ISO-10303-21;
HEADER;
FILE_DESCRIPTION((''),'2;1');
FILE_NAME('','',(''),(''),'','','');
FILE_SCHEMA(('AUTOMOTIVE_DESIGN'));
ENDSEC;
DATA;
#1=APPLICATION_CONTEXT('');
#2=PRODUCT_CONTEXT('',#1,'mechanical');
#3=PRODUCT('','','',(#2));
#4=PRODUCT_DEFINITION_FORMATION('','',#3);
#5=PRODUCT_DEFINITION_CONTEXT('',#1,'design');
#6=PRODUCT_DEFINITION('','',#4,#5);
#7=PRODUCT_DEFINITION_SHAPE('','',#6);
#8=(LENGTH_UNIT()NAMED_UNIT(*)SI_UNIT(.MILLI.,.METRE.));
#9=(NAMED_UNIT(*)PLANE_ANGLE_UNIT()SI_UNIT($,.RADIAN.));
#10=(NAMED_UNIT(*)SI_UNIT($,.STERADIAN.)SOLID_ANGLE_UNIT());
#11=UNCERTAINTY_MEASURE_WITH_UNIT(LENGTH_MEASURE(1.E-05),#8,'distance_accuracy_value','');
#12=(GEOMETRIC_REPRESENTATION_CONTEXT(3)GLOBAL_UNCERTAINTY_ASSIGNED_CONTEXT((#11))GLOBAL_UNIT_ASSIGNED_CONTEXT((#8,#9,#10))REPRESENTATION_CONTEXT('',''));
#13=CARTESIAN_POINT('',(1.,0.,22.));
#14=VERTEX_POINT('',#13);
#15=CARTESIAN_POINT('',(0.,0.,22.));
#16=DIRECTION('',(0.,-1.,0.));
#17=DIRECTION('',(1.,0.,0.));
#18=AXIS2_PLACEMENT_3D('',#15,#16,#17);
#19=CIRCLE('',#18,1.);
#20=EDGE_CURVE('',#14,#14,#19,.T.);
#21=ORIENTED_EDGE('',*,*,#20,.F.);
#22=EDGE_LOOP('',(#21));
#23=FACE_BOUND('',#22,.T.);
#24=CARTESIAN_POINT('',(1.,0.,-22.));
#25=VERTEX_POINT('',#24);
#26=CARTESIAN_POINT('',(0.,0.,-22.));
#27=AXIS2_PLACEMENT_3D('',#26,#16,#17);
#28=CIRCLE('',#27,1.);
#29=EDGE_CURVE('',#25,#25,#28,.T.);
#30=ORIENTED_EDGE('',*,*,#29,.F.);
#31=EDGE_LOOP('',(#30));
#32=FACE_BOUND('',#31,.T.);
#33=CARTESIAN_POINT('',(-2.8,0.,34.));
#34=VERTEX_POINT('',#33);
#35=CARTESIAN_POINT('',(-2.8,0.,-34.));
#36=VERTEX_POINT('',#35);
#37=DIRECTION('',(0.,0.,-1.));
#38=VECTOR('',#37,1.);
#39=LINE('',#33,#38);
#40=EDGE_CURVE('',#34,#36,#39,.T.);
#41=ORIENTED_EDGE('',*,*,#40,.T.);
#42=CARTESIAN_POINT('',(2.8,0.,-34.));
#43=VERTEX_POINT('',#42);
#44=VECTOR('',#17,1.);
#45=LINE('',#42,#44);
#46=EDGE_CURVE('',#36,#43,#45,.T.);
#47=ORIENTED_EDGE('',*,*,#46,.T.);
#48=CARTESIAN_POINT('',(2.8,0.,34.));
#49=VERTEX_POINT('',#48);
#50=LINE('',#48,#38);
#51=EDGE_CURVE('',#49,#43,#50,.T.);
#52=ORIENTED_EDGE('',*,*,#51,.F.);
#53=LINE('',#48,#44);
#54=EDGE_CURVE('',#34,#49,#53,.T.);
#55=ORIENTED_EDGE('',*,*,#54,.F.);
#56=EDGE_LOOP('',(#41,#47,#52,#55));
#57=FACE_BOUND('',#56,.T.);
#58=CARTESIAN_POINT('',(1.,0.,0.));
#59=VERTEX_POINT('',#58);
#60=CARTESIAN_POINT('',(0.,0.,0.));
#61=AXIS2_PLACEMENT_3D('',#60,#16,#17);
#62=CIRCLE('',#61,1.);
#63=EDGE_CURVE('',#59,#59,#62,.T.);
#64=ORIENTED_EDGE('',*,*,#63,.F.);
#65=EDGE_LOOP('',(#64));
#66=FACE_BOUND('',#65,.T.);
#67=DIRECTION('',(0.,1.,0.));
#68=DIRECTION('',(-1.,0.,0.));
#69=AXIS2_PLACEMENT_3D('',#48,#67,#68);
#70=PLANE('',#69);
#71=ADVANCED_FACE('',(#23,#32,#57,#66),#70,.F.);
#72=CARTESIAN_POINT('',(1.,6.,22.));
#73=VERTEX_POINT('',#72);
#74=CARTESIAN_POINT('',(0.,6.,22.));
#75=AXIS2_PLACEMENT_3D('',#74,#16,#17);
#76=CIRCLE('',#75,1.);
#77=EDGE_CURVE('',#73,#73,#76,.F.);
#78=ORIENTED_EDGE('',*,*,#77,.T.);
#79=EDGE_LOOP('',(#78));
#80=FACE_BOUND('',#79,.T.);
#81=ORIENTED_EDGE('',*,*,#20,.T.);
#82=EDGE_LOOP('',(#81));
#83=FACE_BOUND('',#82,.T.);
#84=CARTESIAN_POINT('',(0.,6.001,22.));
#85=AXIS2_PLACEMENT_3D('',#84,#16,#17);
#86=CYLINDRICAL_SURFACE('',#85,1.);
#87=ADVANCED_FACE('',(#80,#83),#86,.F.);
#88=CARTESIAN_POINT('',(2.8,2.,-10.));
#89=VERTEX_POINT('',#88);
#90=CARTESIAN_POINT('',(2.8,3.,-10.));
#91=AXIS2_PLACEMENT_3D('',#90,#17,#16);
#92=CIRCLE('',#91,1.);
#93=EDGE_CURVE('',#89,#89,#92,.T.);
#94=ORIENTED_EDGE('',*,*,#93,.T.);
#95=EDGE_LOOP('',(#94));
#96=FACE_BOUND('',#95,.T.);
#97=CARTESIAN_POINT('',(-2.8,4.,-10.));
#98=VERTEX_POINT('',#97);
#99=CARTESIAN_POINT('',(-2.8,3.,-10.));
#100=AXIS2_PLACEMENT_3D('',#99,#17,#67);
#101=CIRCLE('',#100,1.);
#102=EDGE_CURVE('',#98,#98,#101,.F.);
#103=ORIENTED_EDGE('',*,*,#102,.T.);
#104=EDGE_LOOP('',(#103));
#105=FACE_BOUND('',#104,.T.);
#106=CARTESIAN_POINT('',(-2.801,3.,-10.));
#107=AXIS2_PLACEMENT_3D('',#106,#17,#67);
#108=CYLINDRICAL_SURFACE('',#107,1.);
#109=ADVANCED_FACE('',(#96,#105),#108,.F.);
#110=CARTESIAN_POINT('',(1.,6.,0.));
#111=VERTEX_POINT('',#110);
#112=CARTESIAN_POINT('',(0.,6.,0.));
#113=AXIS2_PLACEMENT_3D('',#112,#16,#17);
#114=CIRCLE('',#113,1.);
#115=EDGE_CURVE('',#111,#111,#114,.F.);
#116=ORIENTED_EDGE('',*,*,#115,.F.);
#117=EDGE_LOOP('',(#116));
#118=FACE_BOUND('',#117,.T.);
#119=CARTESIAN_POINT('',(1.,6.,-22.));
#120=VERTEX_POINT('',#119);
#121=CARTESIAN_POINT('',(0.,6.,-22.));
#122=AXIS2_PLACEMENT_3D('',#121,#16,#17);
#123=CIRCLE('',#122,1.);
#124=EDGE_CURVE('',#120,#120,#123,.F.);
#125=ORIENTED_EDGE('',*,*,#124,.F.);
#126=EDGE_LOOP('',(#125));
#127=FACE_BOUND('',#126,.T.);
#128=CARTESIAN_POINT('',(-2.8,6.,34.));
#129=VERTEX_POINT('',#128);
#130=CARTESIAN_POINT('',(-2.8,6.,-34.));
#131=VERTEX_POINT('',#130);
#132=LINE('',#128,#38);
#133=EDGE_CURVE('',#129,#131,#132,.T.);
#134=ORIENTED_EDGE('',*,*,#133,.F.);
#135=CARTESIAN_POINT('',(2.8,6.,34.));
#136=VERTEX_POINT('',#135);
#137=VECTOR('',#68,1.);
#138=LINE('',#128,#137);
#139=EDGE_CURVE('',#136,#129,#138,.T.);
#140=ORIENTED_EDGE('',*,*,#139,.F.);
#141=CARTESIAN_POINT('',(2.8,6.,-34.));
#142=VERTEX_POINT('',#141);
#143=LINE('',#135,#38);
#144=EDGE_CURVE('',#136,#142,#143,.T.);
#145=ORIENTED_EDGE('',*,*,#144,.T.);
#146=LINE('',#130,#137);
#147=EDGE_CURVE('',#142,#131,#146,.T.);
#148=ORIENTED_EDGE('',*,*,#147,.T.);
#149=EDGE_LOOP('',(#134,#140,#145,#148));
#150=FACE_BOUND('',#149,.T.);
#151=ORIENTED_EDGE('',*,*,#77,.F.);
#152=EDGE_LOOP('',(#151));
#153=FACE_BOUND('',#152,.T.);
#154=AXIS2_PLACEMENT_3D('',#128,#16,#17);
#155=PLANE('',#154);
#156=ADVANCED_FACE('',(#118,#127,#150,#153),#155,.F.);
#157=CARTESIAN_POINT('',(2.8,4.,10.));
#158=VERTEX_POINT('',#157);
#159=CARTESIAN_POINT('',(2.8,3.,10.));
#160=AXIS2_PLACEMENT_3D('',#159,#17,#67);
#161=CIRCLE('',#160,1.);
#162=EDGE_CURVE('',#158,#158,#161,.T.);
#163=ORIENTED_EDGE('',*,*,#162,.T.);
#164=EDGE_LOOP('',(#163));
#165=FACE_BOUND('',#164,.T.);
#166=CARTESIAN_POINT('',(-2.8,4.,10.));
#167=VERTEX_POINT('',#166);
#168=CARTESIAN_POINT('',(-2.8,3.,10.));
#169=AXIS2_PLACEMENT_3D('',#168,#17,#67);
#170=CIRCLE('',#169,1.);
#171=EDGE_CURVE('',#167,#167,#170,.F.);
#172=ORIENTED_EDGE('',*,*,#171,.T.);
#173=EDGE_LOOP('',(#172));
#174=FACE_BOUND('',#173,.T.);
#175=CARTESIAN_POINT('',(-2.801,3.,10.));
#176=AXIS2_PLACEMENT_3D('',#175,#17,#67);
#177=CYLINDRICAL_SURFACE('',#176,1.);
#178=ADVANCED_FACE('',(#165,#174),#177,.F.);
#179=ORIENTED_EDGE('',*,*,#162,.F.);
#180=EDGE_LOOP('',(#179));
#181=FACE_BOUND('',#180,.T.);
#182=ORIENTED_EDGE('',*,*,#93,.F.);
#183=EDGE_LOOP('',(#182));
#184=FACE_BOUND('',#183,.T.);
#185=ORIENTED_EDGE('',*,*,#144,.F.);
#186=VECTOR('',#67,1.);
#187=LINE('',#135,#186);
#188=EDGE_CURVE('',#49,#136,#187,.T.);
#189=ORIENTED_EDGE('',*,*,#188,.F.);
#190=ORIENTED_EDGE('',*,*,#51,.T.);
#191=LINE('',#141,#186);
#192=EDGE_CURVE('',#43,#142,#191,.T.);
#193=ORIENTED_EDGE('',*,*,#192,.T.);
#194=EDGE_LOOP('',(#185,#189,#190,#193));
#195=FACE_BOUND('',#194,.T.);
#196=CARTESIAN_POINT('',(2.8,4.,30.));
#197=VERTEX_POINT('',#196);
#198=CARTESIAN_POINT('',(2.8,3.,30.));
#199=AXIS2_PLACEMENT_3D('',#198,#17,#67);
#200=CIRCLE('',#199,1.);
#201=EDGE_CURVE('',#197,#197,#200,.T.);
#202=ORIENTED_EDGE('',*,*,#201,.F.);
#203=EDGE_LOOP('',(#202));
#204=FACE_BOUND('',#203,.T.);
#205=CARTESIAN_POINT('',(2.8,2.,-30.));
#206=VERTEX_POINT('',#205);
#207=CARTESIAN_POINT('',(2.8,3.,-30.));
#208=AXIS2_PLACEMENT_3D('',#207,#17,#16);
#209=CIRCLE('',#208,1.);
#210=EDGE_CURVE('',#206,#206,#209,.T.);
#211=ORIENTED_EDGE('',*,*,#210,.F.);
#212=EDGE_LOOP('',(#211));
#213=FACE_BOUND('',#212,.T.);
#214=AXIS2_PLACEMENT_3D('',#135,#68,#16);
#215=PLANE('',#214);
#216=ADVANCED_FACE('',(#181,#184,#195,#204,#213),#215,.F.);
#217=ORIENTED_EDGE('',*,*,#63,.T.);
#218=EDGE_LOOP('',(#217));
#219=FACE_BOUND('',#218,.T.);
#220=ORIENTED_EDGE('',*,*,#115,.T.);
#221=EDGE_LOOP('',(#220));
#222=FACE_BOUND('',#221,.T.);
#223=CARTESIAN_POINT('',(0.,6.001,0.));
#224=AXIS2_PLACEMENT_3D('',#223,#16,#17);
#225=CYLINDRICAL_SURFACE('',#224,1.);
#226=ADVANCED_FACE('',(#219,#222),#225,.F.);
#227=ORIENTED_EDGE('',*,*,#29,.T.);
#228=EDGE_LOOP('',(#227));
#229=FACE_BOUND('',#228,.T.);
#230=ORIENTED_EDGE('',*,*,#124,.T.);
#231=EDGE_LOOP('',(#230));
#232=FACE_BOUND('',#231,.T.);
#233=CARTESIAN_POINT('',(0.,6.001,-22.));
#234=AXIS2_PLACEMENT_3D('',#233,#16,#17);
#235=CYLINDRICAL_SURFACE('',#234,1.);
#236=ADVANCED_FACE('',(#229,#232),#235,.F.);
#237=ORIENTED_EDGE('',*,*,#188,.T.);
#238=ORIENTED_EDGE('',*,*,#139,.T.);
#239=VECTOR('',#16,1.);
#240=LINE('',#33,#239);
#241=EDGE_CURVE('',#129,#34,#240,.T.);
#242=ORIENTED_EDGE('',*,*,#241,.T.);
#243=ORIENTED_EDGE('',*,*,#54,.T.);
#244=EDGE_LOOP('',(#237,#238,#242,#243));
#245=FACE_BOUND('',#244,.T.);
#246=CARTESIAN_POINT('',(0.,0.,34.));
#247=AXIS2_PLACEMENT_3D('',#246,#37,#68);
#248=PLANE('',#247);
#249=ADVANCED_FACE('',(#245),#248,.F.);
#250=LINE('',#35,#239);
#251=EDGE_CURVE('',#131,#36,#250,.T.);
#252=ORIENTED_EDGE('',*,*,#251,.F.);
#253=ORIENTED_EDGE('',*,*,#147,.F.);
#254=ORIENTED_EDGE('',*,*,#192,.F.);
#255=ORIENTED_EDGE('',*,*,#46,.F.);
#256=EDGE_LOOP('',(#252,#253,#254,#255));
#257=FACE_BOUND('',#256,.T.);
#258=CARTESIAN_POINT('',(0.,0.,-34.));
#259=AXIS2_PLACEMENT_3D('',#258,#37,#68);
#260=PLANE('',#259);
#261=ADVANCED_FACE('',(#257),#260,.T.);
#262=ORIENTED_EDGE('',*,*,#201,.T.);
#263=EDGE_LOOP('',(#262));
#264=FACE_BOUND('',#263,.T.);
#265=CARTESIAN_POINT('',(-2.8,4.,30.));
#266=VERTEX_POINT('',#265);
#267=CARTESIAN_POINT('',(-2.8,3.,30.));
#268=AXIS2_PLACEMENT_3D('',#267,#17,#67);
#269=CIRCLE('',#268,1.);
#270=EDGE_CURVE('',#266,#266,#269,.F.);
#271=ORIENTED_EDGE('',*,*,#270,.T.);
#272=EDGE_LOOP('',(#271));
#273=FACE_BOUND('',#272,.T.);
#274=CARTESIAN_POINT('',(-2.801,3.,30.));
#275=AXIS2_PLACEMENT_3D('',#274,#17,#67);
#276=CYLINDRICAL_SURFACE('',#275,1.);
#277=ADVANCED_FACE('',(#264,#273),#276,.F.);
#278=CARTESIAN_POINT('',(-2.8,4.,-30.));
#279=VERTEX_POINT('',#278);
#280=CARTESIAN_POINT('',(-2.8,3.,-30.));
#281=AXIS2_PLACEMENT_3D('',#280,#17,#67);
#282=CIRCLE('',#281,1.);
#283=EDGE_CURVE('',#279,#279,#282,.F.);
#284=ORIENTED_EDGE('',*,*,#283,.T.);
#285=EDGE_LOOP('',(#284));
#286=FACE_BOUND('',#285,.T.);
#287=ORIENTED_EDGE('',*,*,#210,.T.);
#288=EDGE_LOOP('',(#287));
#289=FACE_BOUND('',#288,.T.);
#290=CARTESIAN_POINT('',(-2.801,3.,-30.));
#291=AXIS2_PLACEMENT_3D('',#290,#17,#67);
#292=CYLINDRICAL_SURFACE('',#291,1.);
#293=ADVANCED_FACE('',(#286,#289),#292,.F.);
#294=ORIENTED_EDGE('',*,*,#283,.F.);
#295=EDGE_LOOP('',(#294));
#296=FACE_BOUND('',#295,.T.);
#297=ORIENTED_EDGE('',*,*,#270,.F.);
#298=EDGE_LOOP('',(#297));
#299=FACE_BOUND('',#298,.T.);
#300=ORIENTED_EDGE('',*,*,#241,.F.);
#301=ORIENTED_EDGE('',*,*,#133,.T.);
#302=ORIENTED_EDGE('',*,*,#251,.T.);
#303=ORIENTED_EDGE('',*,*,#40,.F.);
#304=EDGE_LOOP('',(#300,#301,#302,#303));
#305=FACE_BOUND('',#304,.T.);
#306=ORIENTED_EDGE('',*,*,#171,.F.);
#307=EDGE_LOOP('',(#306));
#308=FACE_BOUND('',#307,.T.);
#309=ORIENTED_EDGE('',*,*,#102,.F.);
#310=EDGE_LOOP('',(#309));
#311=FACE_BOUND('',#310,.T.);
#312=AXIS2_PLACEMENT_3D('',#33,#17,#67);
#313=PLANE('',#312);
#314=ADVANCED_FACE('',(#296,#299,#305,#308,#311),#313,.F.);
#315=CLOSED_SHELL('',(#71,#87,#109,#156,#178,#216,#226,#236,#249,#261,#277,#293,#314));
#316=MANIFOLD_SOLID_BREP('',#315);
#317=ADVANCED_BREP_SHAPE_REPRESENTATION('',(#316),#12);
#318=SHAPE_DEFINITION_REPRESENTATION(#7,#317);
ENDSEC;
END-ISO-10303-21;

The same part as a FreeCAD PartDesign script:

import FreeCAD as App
import Part
import Sketcher

doc = App.newDocument("Part")
body = doc.addObject("PartDesign::Body", "Body")

# Sketch on XY plane
sketch1 = body.newObject("Sketcher::SketchObject", "Sketch")
sketch1.AttachmentSupport = (doc.getObject("XY_Plane"), [""])
sketch1.MapMode = "FlatFace"
sketch1.addGeometry([
    Part.LineSegment(App.Vector(-2.8, 6, 0), App.Vector(-2.8, 0, 0)),
    Part.LineSegment(App.Vector(-2.8, 0, 0), App.Vector(2.8, 0, 0)),
    Part.LineSegment(App.Vector(2.8, 0, 0), App.Vector(2.8, 6, 0)),
    Part.LineSegment(App.Vector(2.8, 6, 0), App.Vector(-2.8, 6, 0)),
], False)
sketch1.addConstraint([
    Sketcher.Constraint("Coincident", 0, 2, 1, 1),
    Sketcher.Constraint("Coincident", 1, 2, 2, 1),
    Sketcher.Constraint("Coincident", 2, 2, 3, 1),
    Sketcher.Constraint("Coincident", 3, 2, 0, 1),
    Sketcher.Constraint("Vertical", 0),
    Sketcher.Constraint("Horizontal", 1),
    Sketcher.Constraint("Vertical", 2),
    Sketcher.Constraint("Horizontal", 3),
    Sketcher.Constraint("Symmetric", 0, 2, 1, 2, -1, 1),
    Sketcher.Constraint("DistanceY", 0, 2, 0, 1, 6.0),
    Sketcher.Constraint("DistanceX", 1, 1, 1, 2, 5.6),
])
pad1 = body.newObject("PartDesign::Pad", "Pad")
pad1.Profile = sketch1
pad1.Length = 68
pad1.Midplane = True

# Sketch on XZ plane
sketch2 = body.newObject("Sketcher::SketchObject", "Sketch001")
sketch2.AttachmentSupport = (doc.getObject("XZ_Plane"), [""])
sketch2.MapMode = "FlatFace"
sketch2.addGeometry(Part.Circle(App.Vector(0, 0, 0), App.Vector(0, 0, 1), 1), False)
sketch2.addConstraint([
    Sketcher.Constraint("Coincident", 0, 3, -1, 1),
    Sketcher.Constraint("Diameter", 0, 2.0),
])
pocket1 = body.newObject("PartDesign::Pocket", "Pocket")
pocket1.Profile = sketch2
pocket1.Type = "UpToFirst"

# Sketch on XZ plane
sketch3 = body.newObject("Sketcher::SketchObject", "Sketch002")
sketch3.AttachmentSupport = (doc.getObject("XZ_Plane"), [""])
sketch3.MapMode = "FlatFace"
sketch3.addGeometry(Part.Circle(App.Vector(0, 22, 0), App.Vector(0, 0, 1), 1), False)
sketch3.addConstraint([
    Sketcher.Constraint("PointOnObject", 0, 3, -2),
    Sketcher.Constraint("Diameter", 0, 2.0),
    Sketcher.Constraint("DistanceY", -1, 1, 0, 3, 22.0),
])
pocket2 = body.newObject("PartDesign::Pocket", "Pocket001")
pocket2.Profile = sketch3
pocket2.Type = "UpToFirst"

# Sketch on XZ plane
sketch4 = body.newObject("Sketcher::SketchObject", "Sketch003")
sketch4.AttachmentSupport = (doc.getObject("XZ_Plane"), [""])
sketch4.MapMode = "FlatFace"
sketch4.addGeometry(Part.Circle(App.Vector(0, -22, 0), App.Vector(0, 0, 1), 1), False)
sketch4.addConstraint([
    Sketcher.Constraint("PointOnObject", 0, 3, -2),
    Sketcher.Constraint("Diameter", 0, 2.0),
    Sketcher.Constraint("DistanceY", 0, 3, -1, 1, 22.0),
])
pocket3 = body.newObject("PartDesign::Pocket", "Pocket002")
pocket3.Profile = sketch4
pocket3.Type = "UpToFirst"

# Sketch on YZ plane
sketch5 = body.newObject("Sketcher::SketchObject", "Sketch004")
sketch5.AttachmentSupport = (doc.getObject("YZ_Plane"), [""])
sketch5.MapMode = "FlatFace"
sketch5.AttachmentOffset = App.Placement(App.Vector(0, 0, 2.8), App.Rotation())
sketch5.addGeometry(Part.Circle(App.Vector(3, 30, 0), App.Vector(0, 0, 1), 1), False)
sketch5.addConstraint([
    Sketcher.Constraint("Diameter", 0, 2.0),
    Sketcher.Constraint("DistanceX", -1, 1, 0, 3, 3.0),
    Sketcher.Constraint("DistanceY", -1, 1, 0, 3, 30.0),
])
pocket4 = body.newObject("PartDesign::Pocket", "Pocket003")
pocket4.Profile = sketch5
pocket4.Type = "UpToFirst"

# Sketch on YZ plane
sketch6 = body.newObject("Sketcher::SketchObject", "Sketch005")
sketch6.AttachmentSupport = (doc.getObject("YZ_Plane"), [""])
sketch6.MapMode = "FlatFace"
sketch6.AttachmentOffset = App.Placement(App.Vector(0, 0, 2.8), App.Rotation())
sketch6.addGeometry(Part.Circle(App.Vector(3, 10, 0), App.Vector(0, 0, 1), 1), False)
sketch6.addConstraint([
    Sketcher.Constraint("Diameter", 0, 2.0),
    Sketcher.Constraint("DistanceX", -1, 1, 0, 3, 3.0),
    Sketcher.Constraint("DistanceY", -1, 1, 0, 3, 10.0),
])
pocket5 = body.newObject("PartDesign::Pocket", "Pocket004")
pocket5.Profile = sketch6
pocket5.Type = "UpToFirst"

# Sketch on YZ plane
sketch7 = body.newObject("Sketcher::SketchObject", "Sketch006")
sketch7.AttachmentSupport = (doc.getObject("YZ_Plane"), [""])
sketch7.MapMode = "FlatFace"
sketch7.AttachmentOffset = App.Placement(App.Vector(0, 0, 2.8), App.Rotation())
sketch7.addGeometry(Part.Circle(App.Vector(3, -10, 0), App.Vector(0, 0, 1), 1), False)
sketch7.addConstraint([
    Sketcher.Constraint("Diameter", 0, 2.0),
    Sketcher.Constraint("DistanceX", -1, 1, 0, 3, 3.0),
    Sketcher.Constraint("DistanceY", 0, 3, -1, 1, 10.0),
])
pocket6 = body.newObject("PartDesign::Pocket", "Pocket005")
pocket6.Profile = sketch7
pocket6.Type = "UpToFirst"

# Sketch on YZ plane
sketch8 = body.newObject("Sketcher::SketchObject", "Sketch007")
sketch8.AttachmentSupport = (doc.getObject("YZ_Plane"), [""])
sketch8.MapMode = "FlatFace"
sketch8.AttachmentOffset = App.Placement(App.Vector(0, 0, 2.8), App.Rotation())
sketch8.addGeometry(Part.Circle(App.Vector(3, -30, 0), App.Vector(0, 0, 1), 1), False)
sketch8.addConstraint([
    Sketcher.Constraint("Diameter", 0, 2.0),
    Sketcher.Constraint("DistanceX", -1, 1, 0, 3, 3.0),
    Sketcher.Constraint("DistanceY", 0, 3, -1, 1, 30.0),
])
pocket7 = body.newObject("PartDesign::Pocket", "Pocket006")
pocket7.Profile = sketch8
pocket7.Type = "UpToFirst"

doc.recompute()
